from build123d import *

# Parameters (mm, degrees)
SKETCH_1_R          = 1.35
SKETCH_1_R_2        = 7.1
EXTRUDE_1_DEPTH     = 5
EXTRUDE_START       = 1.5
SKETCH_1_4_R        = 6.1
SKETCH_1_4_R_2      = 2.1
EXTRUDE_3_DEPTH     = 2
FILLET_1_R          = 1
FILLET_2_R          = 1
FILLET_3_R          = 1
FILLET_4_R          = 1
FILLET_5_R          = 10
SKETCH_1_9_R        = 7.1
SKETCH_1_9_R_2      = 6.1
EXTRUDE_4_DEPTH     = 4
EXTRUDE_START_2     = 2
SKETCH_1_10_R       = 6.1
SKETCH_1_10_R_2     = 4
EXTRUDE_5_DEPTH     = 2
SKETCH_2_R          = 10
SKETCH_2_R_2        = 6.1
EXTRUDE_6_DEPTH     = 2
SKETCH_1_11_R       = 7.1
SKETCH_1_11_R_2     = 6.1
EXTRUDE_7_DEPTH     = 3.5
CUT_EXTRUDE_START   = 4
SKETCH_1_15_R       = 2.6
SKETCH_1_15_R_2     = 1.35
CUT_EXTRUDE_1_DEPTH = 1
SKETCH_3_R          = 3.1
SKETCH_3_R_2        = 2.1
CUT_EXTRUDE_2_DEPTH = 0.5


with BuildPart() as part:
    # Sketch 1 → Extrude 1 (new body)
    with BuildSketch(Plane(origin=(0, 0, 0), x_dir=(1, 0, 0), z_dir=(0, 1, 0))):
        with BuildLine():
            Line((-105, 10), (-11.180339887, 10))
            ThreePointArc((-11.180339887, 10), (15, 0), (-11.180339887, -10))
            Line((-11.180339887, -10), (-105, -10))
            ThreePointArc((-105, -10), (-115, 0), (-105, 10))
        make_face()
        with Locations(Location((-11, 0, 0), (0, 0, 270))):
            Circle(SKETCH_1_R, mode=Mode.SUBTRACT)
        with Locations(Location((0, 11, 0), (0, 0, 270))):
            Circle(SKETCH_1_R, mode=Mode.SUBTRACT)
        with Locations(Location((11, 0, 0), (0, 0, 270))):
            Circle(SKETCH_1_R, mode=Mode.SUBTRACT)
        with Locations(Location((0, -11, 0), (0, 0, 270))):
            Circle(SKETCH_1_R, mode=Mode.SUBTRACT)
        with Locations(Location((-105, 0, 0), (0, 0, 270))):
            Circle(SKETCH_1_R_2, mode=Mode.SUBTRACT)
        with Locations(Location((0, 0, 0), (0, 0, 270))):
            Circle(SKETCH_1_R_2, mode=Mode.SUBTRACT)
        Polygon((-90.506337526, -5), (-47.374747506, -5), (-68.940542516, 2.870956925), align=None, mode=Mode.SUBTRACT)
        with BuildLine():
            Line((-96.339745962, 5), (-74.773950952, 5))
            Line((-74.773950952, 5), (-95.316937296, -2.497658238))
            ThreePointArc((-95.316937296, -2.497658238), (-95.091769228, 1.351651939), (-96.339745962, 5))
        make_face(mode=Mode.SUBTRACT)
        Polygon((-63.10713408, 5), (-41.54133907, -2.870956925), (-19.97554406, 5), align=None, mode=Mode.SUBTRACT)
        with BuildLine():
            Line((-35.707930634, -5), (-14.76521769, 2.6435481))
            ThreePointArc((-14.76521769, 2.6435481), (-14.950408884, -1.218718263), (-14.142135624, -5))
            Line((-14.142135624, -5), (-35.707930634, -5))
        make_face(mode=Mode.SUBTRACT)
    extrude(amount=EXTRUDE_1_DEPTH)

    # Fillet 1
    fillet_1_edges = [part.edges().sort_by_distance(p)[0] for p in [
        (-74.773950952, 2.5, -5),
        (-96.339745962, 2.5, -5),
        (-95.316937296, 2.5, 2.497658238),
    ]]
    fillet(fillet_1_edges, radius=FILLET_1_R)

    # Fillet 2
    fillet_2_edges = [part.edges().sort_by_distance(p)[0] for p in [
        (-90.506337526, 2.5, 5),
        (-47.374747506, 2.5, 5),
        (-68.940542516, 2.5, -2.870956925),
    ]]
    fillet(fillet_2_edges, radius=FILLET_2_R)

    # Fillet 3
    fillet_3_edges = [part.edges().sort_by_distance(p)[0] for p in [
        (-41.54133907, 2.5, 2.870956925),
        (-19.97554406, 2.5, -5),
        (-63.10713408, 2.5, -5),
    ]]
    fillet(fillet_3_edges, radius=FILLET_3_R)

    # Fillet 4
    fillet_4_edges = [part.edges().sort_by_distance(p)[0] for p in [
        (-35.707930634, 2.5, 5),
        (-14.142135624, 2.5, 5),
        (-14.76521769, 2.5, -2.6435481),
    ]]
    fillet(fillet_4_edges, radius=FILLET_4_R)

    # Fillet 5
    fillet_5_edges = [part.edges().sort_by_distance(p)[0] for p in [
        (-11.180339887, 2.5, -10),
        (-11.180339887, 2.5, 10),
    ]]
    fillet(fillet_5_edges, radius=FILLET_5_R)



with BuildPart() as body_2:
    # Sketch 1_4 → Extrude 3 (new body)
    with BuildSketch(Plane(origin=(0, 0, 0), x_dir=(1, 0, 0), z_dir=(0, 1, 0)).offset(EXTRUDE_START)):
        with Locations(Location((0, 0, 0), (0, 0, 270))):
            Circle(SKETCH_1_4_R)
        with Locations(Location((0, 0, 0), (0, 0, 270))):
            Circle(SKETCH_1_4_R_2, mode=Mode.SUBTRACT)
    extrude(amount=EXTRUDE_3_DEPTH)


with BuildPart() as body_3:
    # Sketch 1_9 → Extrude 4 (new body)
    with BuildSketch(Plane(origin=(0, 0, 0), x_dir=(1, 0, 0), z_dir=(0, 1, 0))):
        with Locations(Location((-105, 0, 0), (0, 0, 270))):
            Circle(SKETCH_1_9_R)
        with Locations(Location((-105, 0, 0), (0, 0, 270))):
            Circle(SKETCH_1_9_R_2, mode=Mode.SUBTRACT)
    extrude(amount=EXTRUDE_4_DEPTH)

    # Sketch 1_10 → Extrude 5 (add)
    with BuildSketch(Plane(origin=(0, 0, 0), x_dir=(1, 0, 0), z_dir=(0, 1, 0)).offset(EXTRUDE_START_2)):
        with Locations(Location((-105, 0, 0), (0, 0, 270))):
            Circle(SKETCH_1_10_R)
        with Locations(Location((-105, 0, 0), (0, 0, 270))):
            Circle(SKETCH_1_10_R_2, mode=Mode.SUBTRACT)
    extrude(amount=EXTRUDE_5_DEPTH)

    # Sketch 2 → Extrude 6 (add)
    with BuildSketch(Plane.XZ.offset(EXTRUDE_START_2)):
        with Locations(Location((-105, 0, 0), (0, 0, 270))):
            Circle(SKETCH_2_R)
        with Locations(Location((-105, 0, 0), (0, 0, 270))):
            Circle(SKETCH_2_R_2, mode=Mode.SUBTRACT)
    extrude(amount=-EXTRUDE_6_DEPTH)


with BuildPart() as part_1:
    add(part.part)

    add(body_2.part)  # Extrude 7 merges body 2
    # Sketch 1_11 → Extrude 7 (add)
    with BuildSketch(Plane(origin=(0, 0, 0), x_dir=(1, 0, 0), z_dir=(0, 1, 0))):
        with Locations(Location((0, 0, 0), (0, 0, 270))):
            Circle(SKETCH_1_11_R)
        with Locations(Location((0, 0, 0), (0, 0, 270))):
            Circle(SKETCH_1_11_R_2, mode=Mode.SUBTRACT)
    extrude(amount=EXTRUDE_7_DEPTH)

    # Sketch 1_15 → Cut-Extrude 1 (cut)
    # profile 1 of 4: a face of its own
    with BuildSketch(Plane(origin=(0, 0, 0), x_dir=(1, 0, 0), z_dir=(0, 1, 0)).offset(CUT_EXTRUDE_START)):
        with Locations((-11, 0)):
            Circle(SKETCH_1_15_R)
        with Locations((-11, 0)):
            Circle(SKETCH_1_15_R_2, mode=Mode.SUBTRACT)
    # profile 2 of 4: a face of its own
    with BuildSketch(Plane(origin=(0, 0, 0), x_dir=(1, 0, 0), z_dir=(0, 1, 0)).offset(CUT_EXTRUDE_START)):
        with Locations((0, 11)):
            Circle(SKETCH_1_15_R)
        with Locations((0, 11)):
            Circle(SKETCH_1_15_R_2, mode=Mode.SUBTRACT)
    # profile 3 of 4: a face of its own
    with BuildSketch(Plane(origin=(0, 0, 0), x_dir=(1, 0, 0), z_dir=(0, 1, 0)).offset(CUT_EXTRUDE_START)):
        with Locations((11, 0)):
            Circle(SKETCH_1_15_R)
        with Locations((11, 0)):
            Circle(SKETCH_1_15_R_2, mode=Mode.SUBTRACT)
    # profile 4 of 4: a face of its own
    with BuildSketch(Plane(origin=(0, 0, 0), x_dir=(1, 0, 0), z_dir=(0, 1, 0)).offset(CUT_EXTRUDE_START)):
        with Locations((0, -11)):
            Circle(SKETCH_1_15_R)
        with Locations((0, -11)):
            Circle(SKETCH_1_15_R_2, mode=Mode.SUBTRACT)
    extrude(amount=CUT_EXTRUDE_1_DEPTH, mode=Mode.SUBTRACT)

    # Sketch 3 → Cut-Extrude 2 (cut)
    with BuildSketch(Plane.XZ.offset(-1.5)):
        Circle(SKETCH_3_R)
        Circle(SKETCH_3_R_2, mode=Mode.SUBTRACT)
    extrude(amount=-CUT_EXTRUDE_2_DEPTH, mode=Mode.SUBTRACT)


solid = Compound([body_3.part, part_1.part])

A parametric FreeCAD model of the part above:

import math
import FreeCAD as App
import Part
import Sketcher
Q = App.Units.Quantity


def edges_at(feature, points):
    """Names of the edges that pass closest to the given points."""
    edges = feature.Shape.Edges
    near = lambda p: min(range(len(edges)), key=lambda i: edges[i].distToShape(Part.Vertex(*p))[0])
    return sorted({f"Edge{near(p) + 1}" for p in points})


def add_polygon(sketch, points):
    """Adds a closed chain of lines whose ends are joined by coincident constraints."""
    first, n = sketch.GeometryCount, len(points)
    for a, b in zip(points, points[1:] + points[:1]):
        sketch.addGeometry(Part.LineSegment(App.Vector(*a, 0), App.Vector(*b, 0)), False)
    for i in range(n):
        sketch.addConstraint(Sketcher.Constraint("Coincident", first + i, 2, first + (i + 1) % n, 1))

doc = App.newDocument("Part")
body = doc.addObject("PartDesign::Body", "Body")

# Sketch on XZ plane
sketch1 = body.newObject("Sketcher::SketchObject", "Sketch")
sketch1.AttachmentSupport = (doc.getObject("XZ_Plane"), [""])
sketch1.MapMode = "FlatFace"
sketch1.addGeometry(Part.LineSegment(App.Vector(-11.2, -10, 0), App.Vector(-105, -10, 0)), False)  # 0
sketch1.addGeometry(Part.ArcOfCircle(Part.Circle(App.Vector(-105, 0, 0), App.Vector(0, 0, 1), 10), math.radians(90), math.radians(270)), False)  # 1
sketch1.addGeometry(Part.LineSegment(App.Vector(-105, 10, 0), App.Vector(-11.2, 10, 0)), False)  # 2
sketch1.addGeometry(Part.ArcOfCircle(Part.Circle(App.Vector(0, 0, 0), App.Vector(0, 0, 1), 15), math.radians(-138), math.radians(138)), False)  # 3
sketch1.addGeometry(Part.Circle(App.Vector(0, 11, 0), App.Vector(0, 0, 1), 1.4), False)  # 4
sketch1.addGeometry(Part.LineSegment(App.Vector(-35.7, 5, 0), App.Vector(-14.8, -2.6, 0)), False)  # 5
sketch1.addGeometry(Part.ArcOfCircle(Part.Circle(App.Vector(0, 0, 0), App.Vector(0, 0, 1), 15), math.radians(161), math.radians(190)), False)  # 6
sketch1.addGeometry(Part.LineSegment(App.Vector(-14.1, 5, 0), App.Vector(-35.7, 5, 0)), False)  # 7
add_polygon(sketch1, [(-90.5, 5), (-68.9, -2.9), (-47.4, 5)])  # lines 8-10
sketch1.addGeometry(Part.Circle(App.Vector(11, 0, 0), App.Vector(0, 0, 1), 1.4), False)  # 11
sketch1.addGeometry(Part.Circle(App.Vector(0, 0, 0), App.Vector(0, 0, 1), 7.1), False)  # 12
sketch1.addGeometry(Part.Circle(App.Vector(-11, 0, 0), App.Vector(0, 0, 1), 1.4), False)  # 13
add_polygon(sketch1, [(-63.1, -5), (-20, -5), (-41.5, 2.9)])  # lines 14-16
sketch1.addGeometry(Part.Circle(App.Vector(0, -11, 0), App.Vector(0, 0, 1), 1.4), False)  # 17
sketch1.addGeometry(Part.LineSegment(App.Vector(-96.3, -5, 0), App.Vector(-74.8, -5, 0)), False)  # 18
sketch1.addGeometry(Part.LineSegment(App.Vector(-74.8, -5, 0), App.Vector(-95.3, 2.5, 0)), False)  # 19
sketch1.addGeometry(Part.ArcOfCircle(Part.Circle(App.Vector(-105, 0, 0), App.Vector(0, 0, 1), 10), math.radians(-30), math.radians(14)), False)  # 20
sketch1.addGeometry(Part.Circle(App.Vector(-105, 0, 0), App.Vector(0, 0, 1), 7.1), False)  # 21
sketch1.addConstraint([
    Sketcher.Constraint("Tangent", 0, 2, 1, 2),
    Sketcher.Constraint("Tangent", 1, 1, 2, 1),
    Sketcher.Constraint("Coincident", 2, 2, 3, 2),
    Sketcher.Constraint("Coincident", 3, 1, 0, 1),
    Sketcher.Constraint("Coincident", 5, 2, 6, 2),
    Sketcher.Constraint("Coincident", 6, 1, 7, 1),
    Sketcher.Constraint("Coincident", 7, 2, 5, 1),
    Sketcher.Constraint("Coincident", 18, 2, 19, 1),
    Sketcher.Constraint("Coincident", 19, 2, 20, 2),
    Sketcher.Constraint("Coincident", 20, 1, 18, 1),
    Sketcher.Constraint("Horizontal", 0),
    Sketcher.Constraint("Horizontal", 2),
    Sketcher.Constraint("Horizontal", 7),
    Sketcher.Constraint("Horizontal", 10),
    Sketcher.Constraint("Horizontal", 14),
    Sketcher.Constraint("Horizontal", 18),
    Sketcher.Constraint("Coincident", 3, 3, -1, 1),
    Sketcher.Constraint("Coincident", 6, 3, -1, 1),
    Sketcher.Constraint("Coincident", 12, 3, -1, 1),
    Sketcher.Constraint("Coincident", 20, 3, 1, 3),
    Sketcher.Constraint("Coincident", 21, 3, 1, 3),
    Sketcher.Constraint("Equal", 3, 6),
    Sketcher.Constraint("Equal", 4, 11),
    Sketcher.Constraint("Equal", 11, 13),
    Sketcher.Constraint("Equal", 13, 17),
    Sketcher.Constraint("Equal", 1, 20),
    Sketcher.Constraint("Equal", 12, 21),
    Sketcher.Constraint("Symmetric", 11, 3, 13, 3, -1, 1),
    Sketcher.Constraint("Symmetric", 4, 3, 17, 3, -1, 1),
    Sketcher.Constraint("PointOnObject", 1, 3, -1),
    Sketcher.Constraint("PointOnObject", 4, 3, -2),
    Sketcher.Constraint("PointOnObject", 11, 3, -1),
    Sketcher.Constraint("Parallel", 5, 8),
    Sketcher.Constraint("Parallel", 8, 15),
    Sketcher.Constraint("Parallel", 9, 16),
    Sketcher.Constraint("Parallel", 15, 19),
    Sketcher.Constraint("Horizontal", 7, 2, 9, 2),
    Sketcher.Constraint("Horizontal", 16, 2, 18, 2),
    Sketcher.Constraint("Equal", 10, 14),
    Sketcher.Constraint("Equal", 7, 18),
    Sketcher.Constraint("Equal", 8, 9),
    Sketcher.Constraint("Radius", 1, Q("10 mm")),
    Sketcher.Constraint("Radius", 3, Q("15 mm")),
    Sketcher.Constraint("Diameter", 4, Q("2.7 mm")),
    Sketcher.Constraint("Diameter", 12, Q("14.2 mm")),
    Sketcher.Constraint("DistanceX", 1, 3, -1, 1, Q("105 mm")),
    Sketcher.Constraint("DistanceY", -1, 1, 4, 3, Q("11 mm")),
    Sketcher.Constraint("DistanceX", -1, 1, 11, 3, Q("11 mm")),
    Sketcher.Constraint("DistanceY", -1, 1, 6, 1, Q("5 mm")),
    Sketcher.Constraint("DistanceY", 14, 2, -1, 1, Q("5 mm")),
    Sketcher.Constraint("DistanceX", 10, 2, 10, 1, Q("43.13159 mm")),
    Sketcher.Constraint("DistanceX", 19, 2, 10, 2, Q("4.8106 mm")),
    Sketcher.Constraint("Distance", 5, Q("22.293969 mm")),
    Sketcher.Constraint("Distance", 19, Q("21.868451 mm")),
    Sketcher.Constraint("DistanceX", 15, 2, -1, 1, Q("41.541339 mm")),
])
pad1 = body.newObject("PartDesign::Pad", "Pad")
pad1.Profile = sketch1
pad1.Length = 5
pad1.Reversed = True
doc.recompute()

fillet = body.newObject("PartDesign::Fillet", "Fillet")
fillet.Base = (pad1, edges_at(pad1, [(-74.774, 2.5, -5), (-96.34, 2.5, -5), (-95.317, 2.5, 2.498)]))
fillet.Radius = 1
doc.recompute()

fillet2 = body.newObject("PartDesign::Fillet", "Fillet001")
fillet2.Base = (fillet, edges_at(fillet, [(-90.506, 2.5, 5), (-47.375, 2.5, 5), (-68.941, 2.5, -2.871)]))
fillet2.Radius = 1
doc.recompute()

fillet3 = body.newObject("PartDesign::Fillet", "Fillet002")
fillet3.Base = (fillet2, edges_at(fillet2, [(-41.541, 2.5, 2.871), (-19.976, 2.5, -5), (-63.107, 2.5, -5)]))
fillet3.Radius = 1
doc.recompute()

fillet4 = body.newObject("PartDesign::Fillet", "Fillet003")
fillet4.Base = (fillet3, edges_at(fillet3, [(-35.708, 2.5, 5), (-14.142, 2.5, 5), (-14.765, 2.5, -2.644)]))
fillet4.Radius = 1
doc.recompute()

fillet5 = body.newObject("PartDesign::Fillet", "Fillet004")
fillet5.Base = (fillet4, edges_at(fillet4, [(-11.18, 2.5, -10), (-11.18, 2.5, 10)]))
fillet5.Radius = 10
body2 = doc.addObject("PartDesign::Body", "Body001")

# Sketch on XZ plane
sketch2 = body2.newObject("Sketcher::SketchObject", "Sketch001")
sketch2.AttachmentSupport = (doc.getObject("XZ_Plane001"), [""])
sketch2.MapMode = "FlatFace"
sketch2.AttachmentOffset = App.Placement(App.Vector(0, 0, -1.5), App.Rotation())
sketch2.addGeometry([
    Part.Circle(App.Vector(0, 0, 0), App.Vector(0, 0, 1), 6.1),
    Part.Circle(App.Vector(0, 0, 0), App.Vector(0, 0, 1), 2.1),
], False)
sketch2.addConstraint([
    Sketcher.Constraint("Coincident", 0, 3, -1, 1),
    Sketcher.Constraint("Coincident", 1, 3, -1, 1),
    Sketcher.Constraint("Diameter", 0, Q("12.2 mm")),
    Sketcher.Constraint("Diameter", 1, Q("4.2 mm")),
])
pad2 = body2.newObject("PartDesign::Pad", "Pad001")
pad2.Profile = sketch2
pad2.Length = 2
pad2.Reversed = True
body3 = doc.addObject("PartDesign::Body", "Body002")

# Sketch on XZ plane
sketch3 = body3.newObject("Sketcher::SketchObject", "Sketch002")
sketch3.AttachmentSupport = (doc.getObject("XZ_Plane002"), [""])
sketch3.MapMode = "FlatFace"
sketch3.addGeometry([
    Part.Circle(App.Vector(-105, 0, 0), App.Vector(0, 0, 1), 7),
    Part.Circle(App.Vector(-105, 0, 0), App.Vector(0, 0, 1), 6),
], False)
sketch3.addConstraint([
    Sketcher.Constraint("Coincident", 1, 3, 0, 3),
    Sketcher.Constraint("PointOnObject", 0, 3, -1),
    Sketcher.Constraint("Diameter", 0, Q("14.2 mm")),
    Sketcher.Constraint("Diameter", 1, Q("12.2 mm")),
    Sketcher.Constraint("DistanceX", 0, 3, -1, 1, Q("105 mm")),
])
pad3 = body3.newObject("PartDesign::Pad", "Pad002")
pad3.Profile = sketch3
pad3.Length = 4
pad3.Reversed = True

# Sketch on XZ plane
sketch4 = body3.newObject("Sketcher::SketchObject", "Sketch003")
sketch4.AttachmentSupport = (doc.getObject("XZ_Plane002"), [""])
sketch4.MapMode = "FlatFace"
sketch4.AttachmentOffset = App.Placement(App.Vector(0, 0, -2), App.Rotation())
sketch4.addGeometry([
    Part.Circle(App.Vector(-105, 0, 0), App.Vector(0, 0, 1), 6.1),
    Part.Circle(App.Vector(-105, 0, 0), App.Vector(0, 0, 1), 4),
], False)
sketch4.addConstraint([
    Sketcher.Constraint("Coincident", 1, 3, 0, 3),
    Sketcher.Constraint("PointOnObject", 0, 3, -1),
    Sketcher.Constraint("Diameter", 1, Q("8 mm")),
    Sketcher.Constraint("Diameter", 0, Q("12.2 mm")),
    Sketcher.Constraint("DistanceX", 0, 3, -1, 1, Q("105 mm")),
])
pad4 = body3.newObject("PartDesign::Pad", "Pad003")
pad4.Profile = sketch4
pad4.Length = 2
pad4.Reversed = True

# Sketch on XZ plane
sketch5 = body3.newObject("Sketcher::SketchObject", "Sketch004")
sketch5.AttachmentSupport = (doc.getObject("XZ_Plane002"), [""])
sketch5.MapMode = "FlatFace"
sketch5.AttachmentOffset = App.Placement(App.Vector(0, 0, 2), App.Rotation())
sketch5.addGeometry([
    Part.Circle(App.Vector(-105, 0, 0), App.Vector(0, 0, 1), 10),
    Part.Circle(App.Vector(-105, 0, 0), App.Vector(0, 0, 1), 6),
], False)
sketch5.addConstraint([
    Sketcher.Constraint("Coincident", 1, 3, 0, 3),
    Sketcher.Constraint("PointOnObject", 0, 3, -1),
    Sketcher.Constraint("Diameter", 0, Q("20 mm")),
    Sketcher.Constraint("Diameter", 1, Q("12.2 mm")),
    Sketcher.Constraint("DistanceX", 0, 3, -1, 1, Q("105 mm")),
])
pad5 = body3.newObject("PartDesign::Pad", "Pad004")
pad5.Profile = sketch5
pad5.Length = 2
pad5.Reversed = True
body.AllowCompound = True
doc.recompute()

boolean = body.newObject("PartDesign::Boolean", "Boolean")
boolean.Type = "Fuse"
boolean.addObjects([body2])

# Sketch on XZ plane
sketch6 = body.newObject("Sketcher::SketchObject", "Sketch005")
sketch6.AttachmentSupport = (doc.getObject("XZ_Plane"), [""])
sketch6.MapMode = "FlatFace"
sketch6.addGeometry([
    Part.Circle(App.Vector(0, 0, 0), App.Vector(0, 0, 1), 7),
    Part.Circle(App.Vector(0, 0, 0), App.Vector(0, 0, 1), 6),
], False)
sketch6.addConstraint([
    Sketcher.Constraint("Coincident", 0, 3, -1, 1),
    Sketcher.Constraint("Coincident", 1, 3, -1, 1),
    Sketcher.Constraint("Diameter", 0, Q("14.2 mm")),
    Sketcher.Constraint("Diameter", 1, Q("12.2 mm")),
])
pad6 = body.newObject("PartDesign::Pad", "Pad005")
pad6.Profile = sketch6
pad6.Length = 3.5
pad6.Reversed = True

# Sketch on XZ plane
sketch7 = body.newObject("Sketcher::SketchObject", "Sketch006")
sketch7.AttachmentSupport = (doc.getObject("XZ_Plane"), [""])
sketch7.MapMode = "FlatFace"
sketch7.AttachmentOffset = App.Placement(App.Vector(0, 0, -4), App.Rotation())
sketch7.addGeometry([
    Part.Circle(App.Vector(-11, 0, 0), App.Vector(0, 0, 1), 2.6),  # 0
    Part.Circle(App.Vector(-11, 0, 0), App.Vector(0, 0, 1), 1.4),  # 1
    Part.Circle(App.Vector(0, -11, 0), App.Vector(0, 0, 1), 2.6),  # 2
    Part.Circle(App.Vector(0, -11, 0), App.Vector(0, 0, 1), 1.4),  # 3
    Part.Circle(App.Vector(11, 0, 0), App.Vector(0, 0, 1), 2.6),  # 4
    Part.Circle(App.Vector(11, 0, 0), App.Vector(0, 0, 1), 1.4),  # 5
    Part.Circle(App.Vector(0, 11, 0), App.Vector(0, 0, 1), 2.6),  # 6
    Part.Circle(App.Vector(0, 11, 0), App.Vector(0, 0, 1), 1.4),  # 7
], False)
sketch7.addConstraint([
    Sketcher.Constraint("Coincident", 1, 3, 0, 3),
    Sketcher.Constraint("Coincident", 3, 3, 2, 3),
    Sketcher.Constraint("Coincident", 5, 3, 4, 3),
    Sketcher.Constraint("Coincident", 7, 3, 6, 3),
    Sketcher.Constraint("Equal", 0, 2),
    Sketcher.Constraint("Equal", 1, 3),
    Sketcher.Constraint("Equal", 2, 4),
    Sketcher.Constraint("Equal", 3, 5),
    Sketcher.Constraint("Equal", 4, 6),
    Sketcher.Constraint("Equal", 5, 7),
    Sketcher.Constraint("Symmetric", 0, 3, 4, 3, -1, 1),
    Sketcher.Constraint("Symmetric", 2, 3, 6, 3, -1, 1),
    Sketcher.Constraint("PointOnObject", 0, 3, -1),
    Sketcher.Constraint("PointOnObject", 2, 3, -2),
    Sketcher.Constraint("Diameter", 0, Q("5.2 mm")),
    Sketcher.Constraint("Diameter", 1, Q("2.7 mm")),
    Sketcher.Constraint("DistanceX", 0, 3, -1, 1, Q("11 mm")),
    Sketcher.Constraint("DistanceY", 2, 3, -1, 1, Q("11 mm")),
])
pocket1 = body.newObject("PartDesign::Pocket", "Pocket")
pocket1.Profile = sketch7
pocket1.Length = 1

# Sketch on XZ plane
sketch8 = body.newObject("Sketcher::SketchObject", "Sketch007")
sketch8.AttachmentSupport = (doc.getObject("XZ_Plane"), [""])
sketch8.MapMode = "FlatFace"
sketch8.AttachmentOffset = App.Placement(App.Vector(0, 0, -1.5), App.Rotation())
sketch8.addGeometry([
    Part.Circle(App.Vector(0, 0, 0), App.Vector(0, 0, 1), 3.1),
    Part.Circle(App.Vector(0, 0, 0), App.Vector(0, 0, 1), 2.1),
], False)
sketch8.addConstraint([
    Sketcher.Constraint("Coincident", 0, 3, -1, 1),
    Sketcher.Constraint("Coincident", 1, 3, -1, 1),
    Sketcher.Constraint("Diameter", 0, Q("6.2 mm")),
    Sketcher.Constraint("Diameter", 1, Q("4.2 mm")),
])
pocket2 = body.newObject("PartDesign::Pocket", "Pocket001")
pocket2.Profile = sketch8
pocket2.Length = 0.5

doc.recompute()
